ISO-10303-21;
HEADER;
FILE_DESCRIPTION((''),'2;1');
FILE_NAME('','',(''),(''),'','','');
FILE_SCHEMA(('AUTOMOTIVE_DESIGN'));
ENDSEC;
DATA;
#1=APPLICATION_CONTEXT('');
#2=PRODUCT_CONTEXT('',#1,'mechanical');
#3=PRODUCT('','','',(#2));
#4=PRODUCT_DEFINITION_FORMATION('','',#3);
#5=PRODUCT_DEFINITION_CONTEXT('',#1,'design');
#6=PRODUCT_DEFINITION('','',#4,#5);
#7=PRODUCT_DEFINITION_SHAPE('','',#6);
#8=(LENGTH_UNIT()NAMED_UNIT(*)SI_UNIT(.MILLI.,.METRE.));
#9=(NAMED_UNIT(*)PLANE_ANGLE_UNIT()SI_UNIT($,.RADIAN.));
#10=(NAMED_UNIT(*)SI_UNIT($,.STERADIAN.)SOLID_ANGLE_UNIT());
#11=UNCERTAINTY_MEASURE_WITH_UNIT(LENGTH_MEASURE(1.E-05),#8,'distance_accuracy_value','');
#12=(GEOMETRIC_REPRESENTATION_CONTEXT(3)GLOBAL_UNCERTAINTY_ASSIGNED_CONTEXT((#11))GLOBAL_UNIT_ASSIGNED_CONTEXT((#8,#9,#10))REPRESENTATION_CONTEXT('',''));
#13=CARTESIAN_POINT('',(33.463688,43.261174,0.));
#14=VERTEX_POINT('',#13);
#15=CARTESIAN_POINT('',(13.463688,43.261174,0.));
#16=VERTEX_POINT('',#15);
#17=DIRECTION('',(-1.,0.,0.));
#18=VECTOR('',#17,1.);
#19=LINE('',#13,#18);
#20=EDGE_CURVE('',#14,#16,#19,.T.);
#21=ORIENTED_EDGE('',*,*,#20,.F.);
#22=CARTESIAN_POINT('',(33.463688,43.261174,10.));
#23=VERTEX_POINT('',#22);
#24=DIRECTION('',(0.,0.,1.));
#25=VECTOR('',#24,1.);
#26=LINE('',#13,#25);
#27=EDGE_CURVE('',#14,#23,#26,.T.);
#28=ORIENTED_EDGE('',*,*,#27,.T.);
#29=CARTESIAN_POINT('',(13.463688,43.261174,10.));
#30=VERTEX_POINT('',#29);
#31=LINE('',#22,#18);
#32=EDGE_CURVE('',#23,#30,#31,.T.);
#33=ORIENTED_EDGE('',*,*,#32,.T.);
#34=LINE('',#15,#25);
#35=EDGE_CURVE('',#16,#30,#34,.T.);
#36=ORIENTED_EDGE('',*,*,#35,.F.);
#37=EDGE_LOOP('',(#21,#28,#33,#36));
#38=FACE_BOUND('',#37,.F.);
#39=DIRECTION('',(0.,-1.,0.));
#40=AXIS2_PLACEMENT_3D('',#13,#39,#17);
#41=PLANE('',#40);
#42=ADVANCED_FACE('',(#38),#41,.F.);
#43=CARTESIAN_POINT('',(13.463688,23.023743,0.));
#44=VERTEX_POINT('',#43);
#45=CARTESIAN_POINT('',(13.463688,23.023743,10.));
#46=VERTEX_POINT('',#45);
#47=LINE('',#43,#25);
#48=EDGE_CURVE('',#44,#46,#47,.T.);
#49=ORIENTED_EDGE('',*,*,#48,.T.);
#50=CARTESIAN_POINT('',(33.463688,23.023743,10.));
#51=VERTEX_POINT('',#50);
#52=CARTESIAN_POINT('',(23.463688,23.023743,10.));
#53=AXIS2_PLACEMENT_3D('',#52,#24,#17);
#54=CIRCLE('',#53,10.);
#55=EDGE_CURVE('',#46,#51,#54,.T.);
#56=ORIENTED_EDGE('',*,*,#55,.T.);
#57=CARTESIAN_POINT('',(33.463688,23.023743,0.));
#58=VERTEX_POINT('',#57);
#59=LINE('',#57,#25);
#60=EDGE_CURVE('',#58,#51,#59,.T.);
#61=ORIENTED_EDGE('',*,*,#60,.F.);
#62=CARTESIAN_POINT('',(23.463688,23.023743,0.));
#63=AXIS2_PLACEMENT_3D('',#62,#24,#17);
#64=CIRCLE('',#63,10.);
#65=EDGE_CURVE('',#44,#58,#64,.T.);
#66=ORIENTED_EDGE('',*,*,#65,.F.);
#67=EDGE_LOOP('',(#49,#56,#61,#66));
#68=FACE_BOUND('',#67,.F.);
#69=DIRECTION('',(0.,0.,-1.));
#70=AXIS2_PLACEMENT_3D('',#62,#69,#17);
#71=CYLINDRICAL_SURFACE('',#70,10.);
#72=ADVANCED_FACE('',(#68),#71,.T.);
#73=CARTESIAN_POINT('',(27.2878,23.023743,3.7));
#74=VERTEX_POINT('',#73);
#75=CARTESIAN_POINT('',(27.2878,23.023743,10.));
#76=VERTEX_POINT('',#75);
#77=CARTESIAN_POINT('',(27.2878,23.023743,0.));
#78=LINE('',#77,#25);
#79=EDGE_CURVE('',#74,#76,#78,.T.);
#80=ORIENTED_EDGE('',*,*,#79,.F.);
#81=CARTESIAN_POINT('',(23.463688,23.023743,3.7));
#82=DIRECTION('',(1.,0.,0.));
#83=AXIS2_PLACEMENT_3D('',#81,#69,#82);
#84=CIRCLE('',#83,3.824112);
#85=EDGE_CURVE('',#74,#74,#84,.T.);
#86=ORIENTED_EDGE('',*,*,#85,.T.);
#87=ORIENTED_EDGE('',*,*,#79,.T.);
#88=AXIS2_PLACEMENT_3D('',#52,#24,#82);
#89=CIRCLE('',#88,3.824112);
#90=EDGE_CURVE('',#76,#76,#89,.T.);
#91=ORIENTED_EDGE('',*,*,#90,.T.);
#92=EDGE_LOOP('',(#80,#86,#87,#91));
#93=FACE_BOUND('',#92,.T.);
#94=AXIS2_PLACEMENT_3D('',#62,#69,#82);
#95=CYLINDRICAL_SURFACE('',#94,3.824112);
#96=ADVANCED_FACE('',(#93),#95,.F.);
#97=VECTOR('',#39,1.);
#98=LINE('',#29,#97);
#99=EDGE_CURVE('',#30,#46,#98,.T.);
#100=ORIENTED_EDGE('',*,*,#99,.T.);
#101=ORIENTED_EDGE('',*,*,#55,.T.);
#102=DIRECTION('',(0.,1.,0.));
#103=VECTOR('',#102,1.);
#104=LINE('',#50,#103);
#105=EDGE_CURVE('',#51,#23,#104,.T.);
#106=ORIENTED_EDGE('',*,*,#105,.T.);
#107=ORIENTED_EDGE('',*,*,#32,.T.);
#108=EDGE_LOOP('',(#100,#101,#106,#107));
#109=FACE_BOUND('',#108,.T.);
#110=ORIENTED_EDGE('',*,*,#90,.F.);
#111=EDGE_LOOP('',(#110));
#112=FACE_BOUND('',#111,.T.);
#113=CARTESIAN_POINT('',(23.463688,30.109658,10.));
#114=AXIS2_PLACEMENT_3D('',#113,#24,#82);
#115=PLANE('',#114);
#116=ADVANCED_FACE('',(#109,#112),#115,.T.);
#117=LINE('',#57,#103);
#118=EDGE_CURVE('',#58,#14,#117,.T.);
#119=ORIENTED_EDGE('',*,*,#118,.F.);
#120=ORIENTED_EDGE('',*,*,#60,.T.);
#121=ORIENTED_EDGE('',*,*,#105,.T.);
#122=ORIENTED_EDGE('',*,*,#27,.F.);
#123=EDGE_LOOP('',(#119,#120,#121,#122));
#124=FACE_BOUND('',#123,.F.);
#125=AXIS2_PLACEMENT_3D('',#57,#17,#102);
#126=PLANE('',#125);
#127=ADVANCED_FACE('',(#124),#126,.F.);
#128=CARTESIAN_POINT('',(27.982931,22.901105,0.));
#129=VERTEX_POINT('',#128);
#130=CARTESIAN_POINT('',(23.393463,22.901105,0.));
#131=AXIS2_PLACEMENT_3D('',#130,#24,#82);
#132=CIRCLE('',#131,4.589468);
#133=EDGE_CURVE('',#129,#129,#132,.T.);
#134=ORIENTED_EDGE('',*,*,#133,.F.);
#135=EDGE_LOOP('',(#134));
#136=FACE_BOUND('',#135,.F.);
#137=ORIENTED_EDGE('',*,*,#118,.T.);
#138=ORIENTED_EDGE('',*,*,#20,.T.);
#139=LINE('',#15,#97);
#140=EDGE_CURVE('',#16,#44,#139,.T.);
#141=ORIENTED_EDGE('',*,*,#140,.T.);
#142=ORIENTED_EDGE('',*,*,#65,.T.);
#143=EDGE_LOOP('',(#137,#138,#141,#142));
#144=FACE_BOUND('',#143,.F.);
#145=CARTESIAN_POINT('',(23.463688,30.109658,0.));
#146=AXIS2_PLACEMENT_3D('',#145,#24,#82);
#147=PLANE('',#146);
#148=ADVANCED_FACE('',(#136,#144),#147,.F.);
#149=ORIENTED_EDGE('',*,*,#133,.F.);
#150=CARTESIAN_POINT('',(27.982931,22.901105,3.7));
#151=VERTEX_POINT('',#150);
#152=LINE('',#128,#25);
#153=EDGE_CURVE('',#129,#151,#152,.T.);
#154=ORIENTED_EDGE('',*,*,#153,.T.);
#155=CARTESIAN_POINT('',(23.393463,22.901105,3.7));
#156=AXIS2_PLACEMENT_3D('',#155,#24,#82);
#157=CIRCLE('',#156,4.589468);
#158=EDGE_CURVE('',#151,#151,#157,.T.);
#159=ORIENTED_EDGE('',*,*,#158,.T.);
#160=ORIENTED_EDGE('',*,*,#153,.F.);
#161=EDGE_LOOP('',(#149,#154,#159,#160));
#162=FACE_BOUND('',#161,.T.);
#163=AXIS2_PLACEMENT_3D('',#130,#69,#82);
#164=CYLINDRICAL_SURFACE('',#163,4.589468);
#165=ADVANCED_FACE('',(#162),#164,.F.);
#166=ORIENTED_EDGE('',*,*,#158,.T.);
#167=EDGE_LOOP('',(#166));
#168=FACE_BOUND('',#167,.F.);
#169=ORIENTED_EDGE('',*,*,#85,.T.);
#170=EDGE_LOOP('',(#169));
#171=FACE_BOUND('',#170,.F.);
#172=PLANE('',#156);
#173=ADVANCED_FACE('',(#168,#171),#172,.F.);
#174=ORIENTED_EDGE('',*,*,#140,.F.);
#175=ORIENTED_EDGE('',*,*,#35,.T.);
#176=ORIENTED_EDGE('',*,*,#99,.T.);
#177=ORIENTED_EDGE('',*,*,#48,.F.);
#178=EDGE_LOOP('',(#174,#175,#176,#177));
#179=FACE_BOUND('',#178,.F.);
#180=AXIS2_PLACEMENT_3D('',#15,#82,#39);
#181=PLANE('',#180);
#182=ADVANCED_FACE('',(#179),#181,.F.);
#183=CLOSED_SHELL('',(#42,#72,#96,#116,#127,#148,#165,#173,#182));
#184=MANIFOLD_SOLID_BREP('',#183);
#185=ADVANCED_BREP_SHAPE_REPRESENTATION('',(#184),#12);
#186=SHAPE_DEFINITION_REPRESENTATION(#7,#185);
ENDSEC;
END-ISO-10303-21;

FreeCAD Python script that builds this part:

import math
import FreeCAD as App
import Part
import Sketcher

doc = App.newDocument("Part")
body = doc.addObject("PartDesign::Body", "Body")

# Sketch on XY plane
sketch1 = doc.addObject("Sketcher::SketchObject", "Sketch")
body.addObject(sketch1)
sketch1.AttachmentSupport = (doc.XY_Plane, [""])
sketch1.MapMode = "FlatFace"
sketch1.addGeometry([
    Part.LineSegment(App.Vector(33.5, 43.3, 0), App.Vector(13.5, 43.3, 0)),  # 0
    Part.LineSegment(App.Vector(13.5, 43.3, 0), App.Vector(13.5, 23, 0)),  # 1
    Part.ArcOfCircle(Part.Circle(App.Vector(23.5, 23, 0), App.Vector(0, 0, 1), 10), math.radians(180), math.radians(360)),  # 2
    Part.LineSegment(App.Vector(33.5, 23, 0), App.Vector(33.5, 43.3, 0)),  # 3
    Part.Circle(App.Vector(23.5, 23, 0), App.Vector(0, 0, 1), 3.8),  # 4
], False)
sketch1.addConstraint([
    Sketcher.Constraint("Coincident", 0, 2, 1, 1),
    Sketcher.Constraint("Tangent", 1, 2, 2, 1),
    Sketcher.Constraint("Tangent", 2, 2, 3, 1),
    Sketcher.Constraint("Coincident", 3, 2, 0, 1),
    Sketcher.Constraint("Horizontal", 0),
    Sketcher.Constraint("Vertical", 1),
    Sketcher.Constraint("Vertical", 3),
    Sketcher.Constraint("Coincident", 4, 3, 2, 3),
    Sketcher.Constraint("Radius", 2, 10.0),
    Sketcher.Constraint("Diameter", 4, 7.648224),
    Sketcher.Constraint("DistanceY", 1, 2, 1, 1, 20.237431),
    Sketcher.Constraint("DistanceX", -1, 1, 2, 3, 23.463688),
    Sketcher.Constraint("DistanceY", -1, 1, 2, 3, 23.023743),
])
pad1 = doc.addObject("PartDesign::Pad", "Pad")
body.addObject(pad1)
pad1.Profile = sketch1
pad1.Length = 10

# Sketch on XY plane
sketch2 = doc.addObject("Sketcher::SketchObject", "Sketch001")
body.addObject(sketch2)
sketch2.AttachmentSupport = (doc.XY_Plane, [""])
sketch2.MapMode = "FlatFace"
sketch2.addGeometry(Part.Circle(App.Vector(23.4, 22.9, 0), App.Vector(0, 0, 1), 4.6), False)
sketch2.addConstraint([
    Sketcher.Constraint("Diameter", 0, 9.178936),
    Sketcher.Constraint("DistanceX", -1, 1, 0, 3, 23.393463),
    Sketcher.Constraint("DistanceY", -1, 1, 0, 3, 22.901105),
])
pocket1 = doc.addObject("PartDesign::Pocket", "Pocket")
body.addObject(pocket1)
pocket1.Profile = sketch2
pocket1.Length = 3.7
pocket1.Reversed = True

doc.recompute()
